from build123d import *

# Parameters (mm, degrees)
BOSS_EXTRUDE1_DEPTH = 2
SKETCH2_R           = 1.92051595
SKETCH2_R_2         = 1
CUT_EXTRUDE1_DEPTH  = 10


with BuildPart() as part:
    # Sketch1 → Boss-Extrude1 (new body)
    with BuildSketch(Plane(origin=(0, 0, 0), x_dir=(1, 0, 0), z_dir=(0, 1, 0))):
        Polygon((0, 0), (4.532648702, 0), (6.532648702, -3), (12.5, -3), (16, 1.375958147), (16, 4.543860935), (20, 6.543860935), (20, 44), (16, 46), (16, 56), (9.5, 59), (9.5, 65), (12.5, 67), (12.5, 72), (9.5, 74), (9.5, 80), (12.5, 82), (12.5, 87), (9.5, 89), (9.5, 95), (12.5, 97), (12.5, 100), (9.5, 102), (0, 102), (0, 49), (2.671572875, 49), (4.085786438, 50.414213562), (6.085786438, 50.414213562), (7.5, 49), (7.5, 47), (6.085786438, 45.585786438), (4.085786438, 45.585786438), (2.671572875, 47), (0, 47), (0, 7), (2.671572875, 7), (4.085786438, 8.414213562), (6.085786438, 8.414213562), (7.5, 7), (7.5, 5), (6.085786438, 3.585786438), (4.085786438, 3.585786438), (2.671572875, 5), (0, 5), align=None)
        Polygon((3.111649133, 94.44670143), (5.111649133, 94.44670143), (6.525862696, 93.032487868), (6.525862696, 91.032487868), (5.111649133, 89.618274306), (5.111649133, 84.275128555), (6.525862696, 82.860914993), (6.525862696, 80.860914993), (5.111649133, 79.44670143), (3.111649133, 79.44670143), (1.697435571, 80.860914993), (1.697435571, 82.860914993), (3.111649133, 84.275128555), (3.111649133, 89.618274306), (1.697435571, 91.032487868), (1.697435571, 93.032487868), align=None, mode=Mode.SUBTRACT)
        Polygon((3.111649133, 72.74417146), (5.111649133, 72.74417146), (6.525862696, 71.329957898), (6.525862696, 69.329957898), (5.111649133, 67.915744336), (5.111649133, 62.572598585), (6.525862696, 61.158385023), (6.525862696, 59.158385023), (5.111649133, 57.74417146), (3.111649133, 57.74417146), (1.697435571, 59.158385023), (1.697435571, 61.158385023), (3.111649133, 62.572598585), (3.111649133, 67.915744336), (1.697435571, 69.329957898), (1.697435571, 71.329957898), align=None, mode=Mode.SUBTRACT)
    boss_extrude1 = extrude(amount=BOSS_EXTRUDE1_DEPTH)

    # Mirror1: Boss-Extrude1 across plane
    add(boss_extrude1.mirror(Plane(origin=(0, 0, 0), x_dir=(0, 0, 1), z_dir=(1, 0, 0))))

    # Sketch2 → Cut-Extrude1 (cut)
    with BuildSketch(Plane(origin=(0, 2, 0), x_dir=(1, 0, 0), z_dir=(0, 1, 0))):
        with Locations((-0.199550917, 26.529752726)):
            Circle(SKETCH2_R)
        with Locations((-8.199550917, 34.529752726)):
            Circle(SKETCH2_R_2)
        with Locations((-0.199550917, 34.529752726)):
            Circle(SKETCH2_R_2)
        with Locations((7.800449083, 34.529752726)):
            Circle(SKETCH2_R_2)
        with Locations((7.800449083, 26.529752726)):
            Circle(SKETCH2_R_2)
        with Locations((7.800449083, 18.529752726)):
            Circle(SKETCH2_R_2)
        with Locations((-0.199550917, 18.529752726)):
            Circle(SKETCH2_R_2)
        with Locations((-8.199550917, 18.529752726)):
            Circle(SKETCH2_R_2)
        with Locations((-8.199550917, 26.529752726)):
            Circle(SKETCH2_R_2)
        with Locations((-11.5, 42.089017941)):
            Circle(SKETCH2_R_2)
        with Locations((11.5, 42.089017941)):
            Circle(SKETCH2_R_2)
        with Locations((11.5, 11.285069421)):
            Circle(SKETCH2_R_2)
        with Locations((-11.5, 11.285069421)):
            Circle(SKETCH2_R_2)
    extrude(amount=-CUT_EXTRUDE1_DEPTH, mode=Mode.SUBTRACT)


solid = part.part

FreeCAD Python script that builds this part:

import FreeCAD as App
import Part
import Sketcher
from FreeCAD import Vector
Q = App.Units.Quantity


def add_polygon(sketch, points):
    """Adds a closed chain of lines whose ends are joined by coincident constraints."""
    first, n = sketch.GeometryCount, len(points)
    for a, b in zip(points, points[1:] + points[:1]):
        sketch.addGeometry(Part.LineSegment(App.Vector(*a, 0), App.Vector(*b, 0)), False)
    for i in range(n):
        sketch.addConstraint(Sketcher.Constraint("Coincident", first + i, 2, first + (i + 1) % n, 1))

doc = App.newDocument("Part")
body = doc.addObject("PartDesign::Body", "Body")

# Sketch on XZ plane
sketch1 = body.newObject("Sketcher::SketchObject", "Sketch")
sketch1.AttachmentSupport = (doc.getObject("XZ_Plane"), [""])
sketch1.MapMode = "FlatFace"
add_polygon(sketch1, [(0, 0), (4.5, 0), (6.5, 3), (12.5, 3), (16, -1.4), (16, -4.5), (20, -6.5), (20, -44), (16, -46), (16, -56), (9.5, -59), (9.5, -65), (12.5, -67), (12.5, -72), (9.5, -74), (9.5, -80), (12.5, -82), (12.5, -87), (9.5, -89), (9.5, -95), (12.5, -97), (12.5, -100), (9.5, -102), (0, -102), (0, -49), (2.7, -49), (4.1, -50.4), (6.1, -50.4), (7.5, -49), (7.5, -47), (6.1, -45.6), (4.1, -45.6), (2.7, -47), (0, -47), (0, -7), (2.7, -7), (4.1, -8.4), (6.1, -8.4), (7.5, -7), (7.5, -5), (6.1, -3.6), (4.1, -3.6), (2.7, -5), (0, -5)])  # lines 0-43
add_polygon(sketch1, [(1.7, -71.3), (3.1, -72.7), (5.1, -72.7), (6.5, -71.3), (6.5, -69.3), (5.1, -67.9), (5.1, -62.6), (6.5, -61.2), (6.5, -59.2), (5.1, -57.7), (3.1, -57.7), (1.7, -59.2), (1.7, -61.2), (3.1, -62.6), (3.1, -67.9), (1.7, -69.3)])  # lines 44-59
add_polygon(sketch1, [(1.7, -93), (3.1, -94.4), (5.1, -94.4), (6.5, -93), (6.5, -91), (5.1, -89.6), (5.1, -84.3), (6.5, -82.9), (6.5, -80.9), (5.1, -79.4), (3.1, -79.4), (1.7, -80.9), (1.7, -82.9), (3.1, -84.3), (3.1, -89.6), (1.7, -91)])  # lines 60-75
sketch1.addConstraint([
    Sketcher.Constraint("Horizontal", 0),
    Sketcher.Constraint("Horizontal", 2),
    Sketcher.Constraint("Vertical", 4),
    Sketcher.Constraint("Vertical", 6),
    Sketcher.Constraint("Vertical", 8),
    Sketcher.Constraint("Vertical", 10),
    Sketcher.Constraint("Vertical", 12),
    Sketcher.Constraint("Vertical", 14),
    Sketcher.Constraint("Vertical", 16),
    Sketcher.Constraint("Vertical", 18),
    Sketcher.Constraint("Vertical", 20),
    Sketcher.Constraint("Horizontal", 22),
    Sketcher.Constraint("Vertical", 23),
    Sketcher.Constraint("Horizontal", 24),
    Sketcher.Constraint("Horizontal", 26),
    Sketcher.Constraint("Vertical", 28),
    Sketcher.Constraint("Horizontal", 30),
    Sketcher.Constraint("Horizontal", 32),
    Sketcher.Constraint("Vertical", 33),
    Sketcher.Constraint("Horizontal", 34),
    Sketcher.Constraint("Horizontal", 36),
    Sketcher.Constraint("Vertical", 38),
    Sketcher.Constraint("Horizontal", 40),
    Sketcher.Constraint("Horizontal", 42),
    Sketcher.Constraint("Vertical", 43),
    Sketcher.Constraint("Horizontal", 45),
    Sketcher.Constraint("Vertical", 47),
    Sketcher.Constraint("Vertical", 49),
    Sketcher.Constraint("Vertical", 51),
    Sketcher.Constraint("Horizontal", 53),
    Sketcher.Constraint("Vertical", 55),
    Sketcher.Constraint("Vertical", 57),
    Sketcher.Constraint("Vertical", 59),
    Sketcher.Constraint("Horizontal", 61),
    Sketcher.Constraint("Vertical", 63),
    Sketcher.Constraint("Vertical", 65),
    Sketcher.Constraint("Vertical", 67),
    Sketcher.Constraint("Horizontal", 69),
    Sketcher.Constraint("Vertical", 71),
    Sketcher.Constraint("Vertical", 73),
    Sketcher.Constraint("Vertical", 75),
    Sketcher.Constraint("Coincident", 43, 2, -1, 1),
    Sketcher.Constraint("PointOnObject", 22, 2, -2),
    Sketcher.Constraint("PointOnObject", 32, 2, -2),
    Sketcher.Constraint("Perpendicular", 1, 11),
    Sketcher.Constraint("Parallel", 11, 15),
    Sketcher.Constraint("Parallel", 13, 17),
    Sketcher.Constraint("Parallel", 15, 19),
    Sketcher.Constraint("Parallel", 17, 21),
    Sketcher.Constraint("Perpendicular", 25, 27),
    Sketcher.Constraint("Perpendicular", 27, 29),
    Sketcher.Constraint("Perpendicular", 29, 31),
    Sketcher.Constraint("Perpendicular", 31, 35),
    Sketcher.Constraint("Perpendicular", 35, 37),
    Sketcher.Constraint("Perpendicular", 37, 39),
    Sketcher.Constraint("Perpendicular", 39, 41),
    Sketcher.Constraint("Perpendicular", 41, 44),
    Sketcher.Constraint("Perpendicular", 44, 46),
    Sketcher.Constraint("Perpendicular", 46, 48),
    Sketcher.Constraint("Perpendicular", 48, 50),
    Sketcher.Constraint("Perpendicular", 50, 52),
    Sketcher.Constraint("Perpendicular", 52, 54),
    Sketcher.Constraint("Perpendicular", 54, 56),
    Sketcher.Constraint("Perpendicular", 56, 58),
    Sketcher.Constraint("Perpendicular", 58, 60),
    Sketcher.Constraint("Perpendicular", 60, 62),
    Sketcher.Constraint("Perpendicular", 62, 64),
    Sketcher.Constraint("Perpendicular", 64, 66),
    Sketcher.Constraint("Perpendicular", 66, 68),
    Sketcher.Constraint("Perpendicular", 68, 70),
    Sketcher.Constraint("Perpendicular", 70, 72),
    Sketcher.Constraint("Perpendicular", 72, 74),
    Sketcher.Constraint("Horizontal", 24, 2, 27, 2),
    Sketcher.Constraint("Horizontal", 28, 2, 31, 2),
    Sketcher.Constraint("Horizontal", 34, 2, 37, 2),
    Sketcher.Constraint("Horizontal", 38, 2, 41, 2),
    Sketcher.Constraint("Horizontal", 51, 2, 54, 2),
    Sketcher.Constraint("Horizontal", 50, 2, 55, 2),
    Sketcher.Constraint("Horizontal", 49, 2, 56, 2),
    Sketcher.Constraint("Horizontal", 48, 2, 57, 2),
    Sketcher.Constraint("Horizontal", 47, 2, 58, 2),
    Sketcher.Constraint("Horizontal", 46, 2, 59, 2),
    Sketcher.Constraint("Horizontal", 67, 2, 70, 2),
    Sketcher.Constraint("Horizontal", 66, 2, 71, 2),
    Sketcher.Constraint("Horizontal", 65, 2, 72, 2),
    Sketcher.Constraint("Horizontal", 64, 2, 73, 2),
    Sketcher.Constraint("Horizontal", 63, 2, 74, 2),
    Sketcher.Constraint("Horizontal", 62, 2, 75, 2),
    Sketcher.Constraint("Vertical", 4, 2, 7, 2),
    Sketcher.Constraint("Vertical", 2, 2, 11, 2),
    Sketcher.Constraint("Vertical", 10, 2, 13, 2),
    Sketcher.Constraint("Vertical", 12, 2, 15, 2),
    Sketcher.Constraint("Vertical", 14, 2, 17, 2),
    Sketcher.Constraint("Vertical", 16, 2, 19, 2),
    Sketcher.Constraint("Vertical", 18, 2, 21, 2),
    Sketcher.Constraint("Vertical", 26, 2, 29, 2),
    Sketcher.Constraint("Vertical", 25, 2, 30, 2),
    Sketcher.Constraint("Vertical", 24, 2, 31, 2),
    Sketcher.Constraint("Vertical", 31, 2, 34, 2),
    Sketcher.Constraint("Vertical", 30, 2, 35, 2),
    Sketcher.Constraint("Vertical", 29, 2, 36, 2),
    Sketcher.Constraint("Vertical", 36, 2, 39, 2),
    Sketcher.Constraint("Vertical", 35, 2, 40, 2),
    Sketcher.Constraint("Vertical", 45, 2, 48, 2),
    Sketcher.Constraint("Vertical", 47, 2, 50, 2),
    Sketcher.Constraint("Vertical", 49, 2, 52, 2),
    Sketcher.Constraint("Vertical", 57, 2, 60, 2),
    Sketcher.Constraint("Vertical", 52, 2, 61, 2),
    Sketcher.Constraint("Vertical", 51, 2, 62, 2),
    Sketcher.Constraint("Vertical", 61, 2, 64, 2),
    Sketcher.Constraint("Vertical", 63, 2, 66, 2),
    Sketcher.Constraint("Vertical", 65, 2, 68, 2),
    Sketcher.Constraint("Equal", 40, 45),
    Sketcher.Constraint("Equal", 10, 14),
    Sketcher.Constraint("Equal", 12, 16),
    Sketcher.Constraint("Equal", 14, 18),
    Sketcher.Constraint("Equal", 69, 28),
    Sketcher.Constraint("Equal", 28, 38),
    Sketcher.Constraint("Equal", 16, 43),
    Sketcher.Constraint("Equal", 38, 47),
    Sketcher.Constraint("Equal", 47, 51),
    Sketcher.Constraint("Equal", 59, 63),
    Sketcher.Constraint("Equal", 57, 65),
    Sketcher.Constraint("Equal", 63, 67),
    Sketcher.Constraint("Equal", 5, 7),
    Sketcher.Constraint("Equal", 1, 11),
    Sketcher.Constraint("Equal", 11, 13),
    Sketcher.Constraint("Equal", 41, 44),
    Sketcher.Constraint("DistanceX", 26, 1, 26, 2, Q("2 mm")),
    Sketcher.Constraint("DistanceY", 8, 2, 8, 1, Q("10 mm")),
    Sketcher.Constraint("DistanceY", 10, 2, 10, 1, Q("6 mm")),
    Sketcher.Constraint("DistanceY", 12, 2, 12, 1, Q("5 mm")),
    Sketcher.Constraint("DistanceY", 20, 2, 20, 1, Q("3 mm")),
    Sketcher.Constraint("DistanceY", 23, 1, 23, 2, Q("53 mm")),
    Sketcher.Constraint("DistanceY", 33, 1, 33, 2, Q("40 mm")),
    Sketcher.Constraint("Distance", 25, Q("2 mm")),
    Sketcher.Constraint("DistanceX", 22, 2, 22, 1, Q("9.5 mm")),
    Sketcher.Constraint("DistanceY", -1, 1, 1, 2, Q("3 mm")),
    Sketcher.Constraint("DistanceX", -1, 1, 3, 2, Q("16 mm")),
    Sketcher.Constraint("DistanceX", -1, 1, 5, 2, Q("20 mm")),
    Sketcher.Constraint("DistanceY", 6, 2, -1, 1, Q("44 mm")),
    Sketcher.Constraint("DistanceY", 7, 2, -1, 1, Q("46 mm")),
    Sketcher.Constraint("DistanceY", 9, 2, -1, 1, Q("59 mm")),
    Sketcher.Constraint("DistanceX", -1, 1, 27, 2, Q("7.5 mm")),
    Sketcher.Constraint("DistanceX", 0, 1, 0, 2, Q("4.532649 mm")),
    Sketcher.Constraint("DistanceY", 6, 2, 6, 1, Q("37.456139 mm")),
    Sketcher.Constraint("DistanceY", 49, 2, -1, 1, Q("62.572599 mm")),
    Sketcher.Constraint("DistanceY", 60, 2, -1, 1, Q("94.446701 mm")),
    Sketcher.Constraint("DistanceY", 68, 2, -1, 1, Q("79.446701 mm")),
    Sketcher.Constraint("Distance", 3, Q("5.603482 mm")),
    Sketcher.Constraint("DistanceX", -1, 1, 44, 2, Q("3.111649 mm")),
])
pad1 = body.newObject("PartDesign::Pad", "Pad")
pad1.Profile = sketch1
pad1.Length = 2
pad1.Reversed = True
doc.recompute()

mirrored = body.newObject("PartDesign::Mirrored", "Mirrored")
mirrored.Originals = [pad1]
mirrored.MirrorPlane = (doc.getObject("YZ_Plane"), [""])
body.Tip = mirrored

# Sketch on XZ plane
sketch2 = body.newObject("Sketcher::SketchObject", "Sketch001")
sketch2.AttachmentSupport = (doc.getObject("XZ_Plane"), [""])
sketch2.MapMode = "FlatFace"
sketch2.AttachmentOffset = App.Placement(Vector(0, 0, -2), App.Rotation())
sketch2.addGeometry([
    Part.Circle(Vector(-0.2, -26.5, 0), Vector(0, 0, 1), 1.9),  # 0
    Part.Circle(Vector(-8.2, -34.5, 0), Vector(0, 0, 1), 1),  # 1
    Part.Circle(Vector(-0.2, -34.5, 0), Vector(0, 0, 1), 1),  # 2
    Part.Circle(Vector(7.8, -34.5, 0), Vector(0, 0, 1), 1),  # 3
    Part.Circle(Vector(7.8, -26.5, 0), Vector(0, 0, 1), 1),  # 4
    Part.Circle(Vector(7.8, -18.5, 0), Vector(0, 0, 1), 1),  # 5
    Part.Circle(Vector(-0.2, -18.5, 0), Vector(0, 0, 1), 1),  # 6
    Part.Circle(Vector(-8.2, -18.5, 0), Vector(0, 0, 1), 1),  # 7
    Part.Circle(Vector(-8.2, -26.5, 0), Vector(0, 0, 1), 1),  # 8
    Part.Circle(Vector(-11.5, -42.1, 0), Vector(0, 0, 1), 1),  # 9
    Part.Circle(Vector(11.5, -42.1, 0), Vector(0, 0, 1), 1),  # 10
    Part.Circle(Vector(11.5, -11.3, 0), Vector(0, 0, 1), 1),  # 11
    Part.Circle(Vector(-11.5, -11.3, 0), Vector(0, 0, 1), 1),  # 12
], False)
sketch2.addConstraint([
    Sketcher.Constraint("Equal", 1, 2),
    Sketcher.Constraint("Equal", 2, 3),
    Sketcher.Constraint("Equal", 3, 4),
    Sketcher.Constraint("Equal", 4, 5),
    Sketcher.Constraint("Equal", 5, 6),
    Sketcher.Constraint("Equal", 6, 7),
    Sketcher.Constraint("Equal", 7, 8),
    Sketcher.Constraint("Equal", 8, 9),
    Sketcher.Constraint("Equal", 9, 10),
    Sketcher.Constraint("Equal", 10, 11),
    Sketcher.Constraint("Equal", 11, 12),
    Sketcher.Constraint("Symmetric", 9, 3, 10, 3, -2),
    Sketcher.Constraint("Symmetric", 11, 3, 12, 3, -2),
    Sketcher.Constraint("Horizontal", 1, 3, 2, 3),
    Sketcher.Constraint("Horizontal", 2, 3, 3, 3),
    Sketcher.Constraint("Horizontal", 0, 3, 4, 3),
    Sketcher.Constraint("Horizontal", 5, 3, 6, 3),
    Sketcher.Constraint("Horizontal", 6, 3, 7, 3),
    Sketcher.Constraint("Horizontal", 4, 3, 8, 3),
    Sketcher.Constraint("Vertical", 0, 3, 2, 3),
    Sketcher.Constraint("Vertical", 3, 3, 4, 3),
    Sketcher.Constraint("Vertical", 4, 3, 5, 3),
    Sketcher.Constraint("Vertical", 2, 3, 6, 3),
    Sketcher.Constraint("Vertical", 1, 3, 7, 3),
    Sketcher.Constraint("Vertical", 7, 3, 8, 3),
    Sketcher.Constraint("Vertical", 10, 3, 11, 3),
    Sketcher.Constraint("Diameter", 1, Q("2 mm")),
    Sketcher.Constraint("DistanceX", 1, 3, 0, 3, Q("8 mm")),
    Sketcher.Constraint("DistanceY", 1, 3, 0, 3, Q("8 mm")),
    Sketcher.Constraint("DistanceX", 2, 3, 3, 3, Q("8 mm")),
    Sketcher.Constraint("DistanceY", 4, 3, 5, 3, Q("8 mm")),
    Sketcher.Constraint("DistanceX", 9, 3, -1, 1, Q("11.5 mm")),
    Sketcher.Constraint("Diameter", 0, Q("3.841032 mm")),
    Sketcher.Constraint("DistanceX", 0, 3, -1, 1, Q("0.199551 mm")),
    Sketcher.Constraint("DistanceY", 11, 3, -1, 1, Q("11.285069 mm")),
    Sketcher.Constraint("DistanceY", 0, 3, -1, 1, Q("26.529753 mm")),
    Sketcher.Constraint("DistanceY", 9, 3, -1, 1, Q("42.089018 mm")),
])
pocket1 = body.newObject("PartDesign::Pocket", "Pocket")
pocket1.Profile = sketch2
pocket1.Length = 10
pocket1.Reversed = True

doc.recompute()
